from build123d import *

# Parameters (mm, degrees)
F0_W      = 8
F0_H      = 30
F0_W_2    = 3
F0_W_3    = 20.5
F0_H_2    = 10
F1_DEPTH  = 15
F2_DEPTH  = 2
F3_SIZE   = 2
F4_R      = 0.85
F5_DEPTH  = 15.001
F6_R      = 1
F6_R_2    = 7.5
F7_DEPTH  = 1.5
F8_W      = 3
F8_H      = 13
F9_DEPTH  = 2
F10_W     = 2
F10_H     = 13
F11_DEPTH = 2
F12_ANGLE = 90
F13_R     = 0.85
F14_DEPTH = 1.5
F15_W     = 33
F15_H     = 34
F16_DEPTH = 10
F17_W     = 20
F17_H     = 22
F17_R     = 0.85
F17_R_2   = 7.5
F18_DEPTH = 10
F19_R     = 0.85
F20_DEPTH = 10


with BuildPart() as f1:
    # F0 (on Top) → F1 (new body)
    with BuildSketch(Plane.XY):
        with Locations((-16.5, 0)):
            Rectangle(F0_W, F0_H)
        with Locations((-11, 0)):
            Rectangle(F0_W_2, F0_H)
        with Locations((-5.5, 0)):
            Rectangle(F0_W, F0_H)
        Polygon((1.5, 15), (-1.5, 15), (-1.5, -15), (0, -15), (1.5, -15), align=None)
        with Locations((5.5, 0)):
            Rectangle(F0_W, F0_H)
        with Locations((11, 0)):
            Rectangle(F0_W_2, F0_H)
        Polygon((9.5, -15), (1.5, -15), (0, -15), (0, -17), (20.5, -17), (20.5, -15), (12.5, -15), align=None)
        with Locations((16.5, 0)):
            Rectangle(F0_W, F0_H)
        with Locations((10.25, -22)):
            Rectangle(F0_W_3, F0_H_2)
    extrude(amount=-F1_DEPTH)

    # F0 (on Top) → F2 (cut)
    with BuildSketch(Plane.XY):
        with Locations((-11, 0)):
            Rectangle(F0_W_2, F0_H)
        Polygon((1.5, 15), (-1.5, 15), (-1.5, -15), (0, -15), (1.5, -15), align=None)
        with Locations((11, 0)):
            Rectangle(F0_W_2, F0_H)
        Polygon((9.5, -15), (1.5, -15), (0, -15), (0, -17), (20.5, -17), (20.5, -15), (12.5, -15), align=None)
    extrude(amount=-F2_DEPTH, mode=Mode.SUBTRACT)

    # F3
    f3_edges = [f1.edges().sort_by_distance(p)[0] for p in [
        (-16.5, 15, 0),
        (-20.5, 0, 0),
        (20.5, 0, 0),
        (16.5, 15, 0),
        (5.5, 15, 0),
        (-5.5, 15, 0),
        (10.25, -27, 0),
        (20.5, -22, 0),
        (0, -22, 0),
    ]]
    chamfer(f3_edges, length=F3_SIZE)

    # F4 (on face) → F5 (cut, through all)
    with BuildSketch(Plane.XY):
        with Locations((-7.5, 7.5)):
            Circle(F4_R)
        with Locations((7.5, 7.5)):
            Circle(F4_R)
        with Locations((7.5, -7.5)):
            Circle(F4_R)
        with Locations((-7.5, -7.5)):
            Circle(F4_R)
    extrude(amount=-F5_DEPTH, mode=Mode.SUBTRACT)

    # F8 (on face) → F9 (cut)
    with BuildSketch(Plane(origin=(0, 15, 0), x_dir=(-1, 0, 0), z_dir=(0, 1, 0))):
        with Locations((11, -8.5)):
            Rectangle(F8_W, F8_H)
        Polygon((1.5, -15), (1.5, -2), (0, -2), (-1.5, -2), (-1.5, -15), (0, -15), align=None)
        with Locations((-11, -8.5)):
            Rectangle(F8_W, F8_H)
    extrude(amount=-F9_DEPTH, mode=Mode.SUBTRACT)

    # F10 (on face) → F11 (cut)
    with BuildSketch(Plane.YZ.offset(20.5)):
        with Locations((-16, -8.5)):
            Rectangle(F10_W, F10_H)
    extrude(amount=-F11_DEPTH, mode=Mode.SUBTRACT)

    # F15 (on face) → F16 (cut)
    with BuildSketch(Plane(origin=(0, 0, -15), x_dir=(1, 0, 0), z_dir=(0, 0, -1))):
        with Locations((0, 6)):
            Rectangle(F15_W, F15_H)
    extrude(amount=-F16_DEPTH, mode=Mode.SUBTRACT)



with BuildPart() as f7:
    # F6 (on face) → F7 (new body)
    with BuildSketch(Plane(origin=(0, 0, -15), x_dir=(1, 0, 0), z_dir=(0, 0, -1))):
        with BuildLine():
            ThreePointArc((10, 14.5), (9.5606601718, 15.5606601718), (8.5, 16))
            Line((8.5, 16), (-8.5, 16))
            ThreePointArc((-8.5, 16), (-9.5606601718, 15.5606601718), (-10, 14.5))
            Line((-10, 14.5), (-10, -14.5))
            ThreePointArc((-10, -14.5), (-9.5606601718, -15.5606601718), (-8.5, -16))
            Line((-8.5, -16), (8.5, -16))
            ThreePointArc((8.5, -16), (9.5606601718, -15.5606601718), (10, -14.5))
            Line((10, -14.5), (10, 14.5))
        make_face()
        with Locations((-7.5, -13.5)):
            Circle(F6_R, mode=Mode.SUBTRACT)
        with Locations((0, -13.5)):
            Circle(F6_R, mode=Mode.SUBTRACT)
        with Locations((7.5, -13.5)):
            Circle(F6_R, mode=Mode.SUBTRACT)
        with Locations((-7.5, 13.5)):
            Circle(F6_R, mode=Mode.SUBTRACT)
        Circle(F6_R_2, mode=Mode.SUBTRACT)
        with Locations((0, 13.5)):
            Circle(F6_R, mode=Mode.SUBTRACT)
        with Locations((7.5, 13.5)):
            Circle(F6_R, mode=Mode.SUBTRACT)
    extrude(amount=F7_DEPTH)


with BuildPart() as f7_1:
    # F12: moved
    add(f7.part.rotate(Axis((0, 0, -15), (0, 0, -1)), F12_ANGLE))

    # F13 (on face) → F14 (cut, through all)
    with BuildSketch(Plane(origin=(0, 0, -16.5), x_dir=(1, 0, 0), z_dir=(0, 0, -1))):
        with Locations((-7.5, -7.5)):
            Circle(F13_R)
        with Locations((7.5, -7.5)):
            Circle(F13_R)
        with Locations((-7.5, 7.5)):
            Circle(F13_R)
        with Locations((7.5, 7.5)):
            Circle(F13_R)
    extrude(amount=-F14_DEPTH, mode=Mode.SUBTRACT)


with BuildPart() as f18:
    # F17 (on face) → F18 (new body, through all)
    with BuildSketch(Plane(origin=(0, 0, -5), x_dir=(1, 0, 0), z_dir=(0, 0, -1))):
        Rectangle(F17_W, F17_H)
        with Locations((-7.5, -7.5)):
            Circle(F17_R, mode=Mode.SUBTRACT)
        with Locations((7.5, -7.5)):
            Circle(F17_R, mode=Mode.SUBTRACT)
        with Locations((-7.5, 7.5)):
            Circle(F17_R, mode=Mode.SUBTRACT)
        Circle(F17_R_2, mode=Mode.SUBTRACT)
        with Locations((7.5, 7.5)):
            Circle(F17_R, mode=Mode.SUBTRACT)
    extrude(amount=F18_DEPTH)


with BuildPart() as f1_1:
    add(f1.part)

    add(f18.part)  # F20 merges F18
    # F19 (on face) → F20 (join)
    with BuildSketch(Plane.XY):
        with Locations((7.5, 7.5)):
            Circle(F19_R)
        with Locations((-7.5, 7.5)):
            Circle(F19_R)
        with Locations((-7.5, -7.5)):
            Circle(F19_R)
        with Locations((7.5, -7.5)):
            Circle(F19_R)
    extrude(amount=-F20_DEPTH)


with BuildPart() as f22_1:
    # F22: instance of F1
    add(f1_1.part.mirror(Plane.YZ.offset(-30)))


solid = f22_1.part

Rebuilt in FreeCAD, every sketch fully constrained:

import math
import FreeCAD as App
import Part
import Sketcher
from FreeCAD import Vector


def edges_at(feature, points):
    """Names of the edges that pass closest to the given points."""
    edges = feature.Shape.Edges
    near = lambda p: min(range(len(edges)), key=lambda i: edges[i].distToShape(Part.Vertex(*p))[0])
    return sorted({f"Edge{near(p) + 1}" for p in points})


def add_polygon(sketch, points):
    """Adds a closed chain of lines whose ends are joined by coincident constraints."""
    first, n = sketch.GeometryCount, len(points)
    for a, b in zip(points, points[1:] + points[:1]):
        sketch.addGeometry(Part.LineSegment(App.Vector(*a, 0), App.Vector(*b, 0)), False)
    for i in range(n):
        sketch.addConstraint(Sketcher.Constraint("Coincident", first + i, 2, first + (i + 1) % n, 1))

doc = App.newDocument("Part")
body = doc.addObject("PartDesign::Body", "Body")

sketch1 = body.newObject("Sketcher::SketchObject", "Sketch")
sketch1.AttachmentSupport = (doc.getObject("XY_Plane"), [""])
sketch1.MapMode = "FlatFace"
add_polygon(sketch1, [(-20.5, 15), (-20.5, -15), (0, -15), (0, -27), (20.5, -27), (20.5, 15)])
sketch1.addConstraint(Sketcher.Constraint("Vertical", 0))
sketch1.addConstraint(Sketcher.Constraint("Horizontal", 1))
sketch1.addConstraint(Sketcher.Constraint("Vertical", 2))
sketch1.addConstraint(Sketcher.Constraint("Horizontal", 3))
sketch1.addConstraint(Sketcher.Constraint("Vertical", 4))
sketch1.addConstraint(Sketcher.Constraint("Horizontal", 5))
sketch1.addConstraint(Sketcher.Constraint("Symmetric", 0, 2, 4, 2, -1, 1))
sketch1.addConstraint(Sketcher.Constraint("PointOnObject", 1, 2, -2))
sketch1.addConstraint(Sketcher.Constraint("DistanceX", 5, 2, 5, 1, 41.0))
sketch1.addConstraint(Sketcher.Constraint("DistanceY", 0, 2, 0, 1, 30.0))
sketch1.addConstraint(Sketcher.Constraint("DistanceY", 2, 2, 2, 1, 12.0))
pad1 = body.newObject("PartDesign::Pad", "Pad")
pad1.Profile = sketch1
pad1.Length = 15
pad1.Reversed = True

sketch2 = body.newObject("Sketcher::SketchObject", "Sketch001")
sketch2.AttachmentSupport = (doc.getObject("XY_Plane"), [""])
sketch2.MapMode = "FlatFace"
add_polygon(sketch2, [(-12.5, 15), (-12.5, -15), (-9.5, -15), (-9.5, 15)])
add_polygon(sketch2, [(1.5, 15), (-1.5, 15), (-1.5, -15), (0, -15), (0, -17), (20.5, -17), (20.5, -15), (12.5, -15), (12.5, 15), (9.5, 15), (9.5, -15), (1.5, -15)])
sketch2.addConstraint(Sketcher.Constraint("Vertical", 0))
sketch2.addConstraint(Sketcher.Constraint("Horizontal", 1))
sketch2.addConstraint(Sketcher.Constraint("Vertical", 2))
sketch2.addConstraint(Sketcher.Constraint("Horizontal", 3))
sketch2.addConstraint(Sketcher.Constraint("Horizontal", 4))
sketch2.addConstraint(Sketcher.Constraint("Vertical", 5))
sketch2.addConstraint(Sketcher.Constraint("Horizontal", 6))
sketch2.addConstraint(Sketcher.Constraint("Vertical", 7))
sketch2.addConstraint(Sketcher.Constraint("Horizontal", 8))
sketch2.addConstraint(Sketcher.Constraint("Vertical", 9))
sketch2.addConstraint(Sketcher.Constraint("Horizontal", 10))
sketch2.addConstraint(Sketcher.Constraint("Vertical", 11))
sketch2.addConstraint(Sketcher.Constraint("Horizontal", 12))
sketch2.addConstraint(Sketcher.Constraint("Vertical", 13))
sketch2.addConstraint(Sketcher.Constraint("Horizontal", 14))
sketch2.addConstraint(Sketcher.Constraint("Vertical", 15))
sketch2.addConstraint(Sketcher.Constraint("Symmetric", 3, 2, 10, 2, -1, 1))
sketch2.addConstraint(Sketcher.Constraint("Symmetric", 1, 2, 12, 2, -1, 1))
sketch2.addConstraint(Sketcher.Constraint("Symmetric", 4, 2, 14, 2, -1, 1))
sketch2.addConstraint(Sketcher.Constraint("PointOnObject", 6, 2, -2))
sketch2.addConstraint(Sketcher.Constraint("Horizontal", 3, 2, 4, 2))
sketch2.addConstraint(Sketcher.Constraint("Horizontal", 1, 2, 5, 2))
sketch2.addConstraint(Sketcher.Constraint("Horizontal", 6, 2, 9, 2))
sketch2.addConstraint(Sketcher.Constraint("Equal", 3, 4))
sketch2.addConstraint(Sketcher.Constraint("Equal", 10, 14))
sketch2.addConstraint(Sketcher.Constraint("DistanceX", 1, 1, 1, 2, 3.0))
sketch2.addConstraint(Sketcher.Constraint("DistanceX", 10, 2, 10, 1, 8.0))
sketch2.addConstraint(Sketcher.Constraint("DistanceY", 0, 2, 0, 1, 30.0))
sketch2.addConstraint(Sketcher.Constraint("DistanceY", 7, 2, 7, 1, 2.0))
pocket1 = body.newObject("PartDesign::Pocket", "Pocket")
pocket1.Profile = sketch2
pocket1.Length = 2
doc.recompute()

chamfer = body.newObject("PartDesign::Chamfer", "Chamfer")
chamfer.Base = (pocket1, edges_at(pocket1, [
    (-16.5, 15, 0),
    (-20.5, 0, 0),
    (20.5, 0, 0),
    (16.5, 15, 0),
    (5.5, 15, 0),
    (-5.5, 15, 0),
    (10.25, -27, 0),
    (20.5, -22, 0),
    (0, -22, 0),
]))
chamfer.Size = 2

sketch3 = body.newObject("Sketcher::SketchObject", "Sketch002")
sketch3.AttachmentSupport = (doc.getObject("XY_Plane"), [""])
sketch3.MapMode = "FlatFace"
sketch3.addGeometry(Part.Circle(Vector(-7.5, 7.5, 0), Vector(0, 0, 1), 0.85), False)
sketch3.addGeometry(Part.Circle(Vector(7.5, 7.5, 0), Vector(0, 0, 1), 0.85), False)
sketch3.addGeometry(Part.Circle(Vector(7.5, -7.5, 0), Vector(0, 0, 1), 0.85), False)
sketch3.addGeometry(Part.Circle(Vector(-7.5, -7.5, 0), Vector(0, 0, 1), 0.85), False)
sketch3.addConstraint(Sketcher.Constraint("Equal", 0, 1))
sketch3.addConstraint(Sketcher.Constraint("Equal", 1, 2))
sketch3.addConstraint(Sketcher.Constraint("Equal", 2, 3))
sketch3.addConstraint(Sketcher.Constraint("Symmetric", 0, 3, 2, 3, -1, 1))
sketch3.addConstraint(Sketcher.Constraint("Symmetric", 1, 3, 3, 3, -1, 1))
sketch3.addConstraint(Sketcher.Constraint("Symmetric", 0, 3, 1, 3, -2))
sketch3.addConstraint(Sketcher.Constraint("Diameter", 0, 1.7))
sketch3.addConstraint(Sketcher.Constraint("DistanceX", 0, 3, 1, 3, 15.0))
sketch3.addConstraint(Sketcher.Constraint("DistanceY", 2, 3, 1, 3, 15.0))
pocket2 = body.newObject("PartDesign::Pocket", "Pocket001")
pocket2.Profile = sketch3
pocket2.Type = "ThroughAll"

sketch4 = body.newObject("Sketcher::SketchObject", "Sketch003")
sketch4.AttachmentSupport = (doc.getObject("XZ_Plane"), [""])
sketch4.MapMode = "FlatFace"
sketch4.AttachmentOffset = App.Placement(Vector(0, 0, -15), App.Rotation())
add_polygon(sketch4, [(-9.5, -2), (-9.5, -15), (-12.5, -15), (-12.5, -2)])
add_polygon(sketch4, [(-1.5, -15), (-1.5, -2), (1.5, -2), (1.5, -15)])
add_polygon(sketch4, [(12.5, -2), (12.5, -15), (9.5, -15), (9.5, -2)])
sketch4.addConstraint(Sketcher.Constraint("Vertical", 0))
sketch4.addConstraint(Sketcher.Constraint("Horizontal", 1))
sketch4.addConstraint(Sketcher.Constraint("Vertical", 2))
sketch4.addConstraint(Sketcher.Constraint("Horizontal", 3))
sketch4.addConstraint(Sketcher.Constraint("Vertical", 4))
sketch4.addConstraint(Sketcher.Constraint("Horizontal", 5))
sketch4.addConstraint(Sketcher.Constraint("Vertical", 6))
sketch4.addConstraint(Sketcher.Constraint("Horizontal", 7))
sketch4.addConstraint(Sketcher.Constraint("Vertical", 8))
sketch4.addConstraint(Sketcher.Constraint("Horizontal", 9))
sketch4.addConstraint(Sketcher.Constraint("Vertical", 10))
sketch4.addConstraint(Sketcher.Constraint("Horizontal", 11))
sketch4.addConstraint(Sketcher.Constraint("Symmetric", 1, 2, 8, 2, -2))
sketch4.addConstraint(Sketcher.Constraint("Symmetric", 3, 2, 10, 2, -2))
sketch4.addConstraint(Sketcher.Constraint("Horizontal", 3, 2, 4, 2))
sketch4.addConstraint(Sketcher.Constraint("Horizontal", 1, 2, 6, 2))
sketch4.addConstraint(Sketcher.Constraint("Equal", 3, 5))
sketch4.addConstraint(Sketcher.Constraint("DistanceX", 1, 2, 1, 1, 3.0))
sketch4.addConstraint(Sketcher.Constraint("DistanceY", 0, 2, 0, 1, 13.0))
sketch4.addConstraint(Sketcher.Constraint("DistanceY", 0, 2, -1, 1, 15.0))
sketch4.addConstraint(Sketcher.Constraint("DistanceX", 3, 2, 4, 2, 8.0))
sketch4.addConstraint(Sketcher.Constraint("DistanceX", 6, 2, 8, 2, 11.0))
pocket3 = body.newObject("PartDesign::Pocket", "Pocket002")
pocket3.Profile = sketch4
pocket3.Length = 2
pocket3.Reversed = True

sketch5 = body.newObject("Sketcher::SketchObject", "Sketch004")
sketch5.AttachmentSupport = (doc.getObject("YZ_Plane"), [""])
sketch5.MapMode = "FlatFace"
sketch5.AttachmentOffset = App.Placement(Vector(0, 0, 20.5), App.Rotation())
add_polygon(sketch5, [(-17, -2), (-17, -15), (-15, -15), (-15, -2)])
sketch5.addConstraint(Sketcher.Constraint("Vertical", 0))
sketch5.addConstraint(Sketcher.Constraint("Horizontal", 1))
sketch5.addConstraint(Sketcher.Constraint("Vertical", 2))
sketch5.addConstraint(Sketcher.Constraint("Horizontal", 3))
sketch5.addConstraint(Sketcher.Constraint("DistanceX", 1, 1, 1, 2, 2.0))
sketch5.addConstraint(Sketcher.Constraint("DistanceY", 0, 2, 0, 1, 13.0))
sketch5.addConstraint(Sketcher.Constraint("DistanceX", 0, 2, -1, 1, 17.0))
sketch5.addConstraint(Sketcher.Constraint("DistanceY", 0, 2, -1, 1, 15.0))
pocket4 = body.newObject("PartDesign::Pocket", "Pocket003")
pocket4.Profile = sketch5
pocket4.Length = 2

sketch6 = body.newObject("Sketcher::SketchObject", "Sketch005")
sketch6.AttachmentSupport = (doc.getObject("XY_Plane"), [""])
sketch6.MapMode = "FlatFace"
sketch6.AttachmentOffset = App.Placement(Vector(0, 0, -15), App.Rotation())
add_polygon(sketch6, [(-16.5, -23), (-16.5, 11), (16.5, 11), (16.5, -23)])
sketch6.addConstraint(Sketcher.Constraint("Vertical", 0))
sketch6.addConstraint(Sketcher.Constraint("Horizontal", 1))
sketch6.addConstraint(Sketcher.Constraint("Vertical", 2))
sketch6.addConstraint(Sketcher.Constraint("Horizontal", 3))
sketch6.addConstraint(Sketcher.Constraint("DistanceX", 1, 1, 1, 2, 33.0))
sketch6.addConstraint(Sketcher.Constraint("DistanceY", 0, 1, 0, 2, 34.0))
sketch6.addConstraint(Sketcher.Constraint("DistanceY", -1, 1, 0, 2, 11.0))
sketch6.addConstraint(Sketcher.Constraint("DistanceX", 0, 2, -1, 1, 16.5))
pocket5 = body.newObject("PartDesign::Pocket", "Pocket004")
pocket5.Profile = sketch6
pocket5.Length = 10
pocket5.Reversed = True
body2 = doc.addObject("PartDesign::Body", "Body001")

sketch7 = body2.newObject("Sketcher::SketchObject", "Sketch006")
sketch7.AttachmentSupport = (doc.getObject("XY_Plane001"), [""])
sketch7.MapMode = "FlatFace"
sketch7.AttachmentOffset = App.Placement(Vector(0, 0, -15), App.Rotation())
sketch7.addGeometry(Part.ArcOfCircle(Part.Circle(Vector(8.5, -14.5, 0), Vector(0, 0, 1), 1.5), math.radians(-90), math.radians(0)), False)
sketch7.addGeometry(Part.LineSegment(Vector(8.5, -16, 0), Vector(-8.5, -16, 0)), False)
sketch7.addGeometry(Part.ArcOfCircle(Part.Circle(Vector(-8.5, -14.5, 0), Vector(0, 0, 1), 1.5), math.radians(180), math.radians(270)), False)
sketch7.addGeometry(Part.LineSegment(Vector(-10, -14.5, 0), Vector(-10, 14.5, 0)), False)
sketch7.addGeometry(Part.ArcOfCircle(Part.Circle(Vector(-8.5, 14.5, 0), Vector(0, 0, 1), 1.5), math.radians(90), math.radians(180)), False)
sketch7.addGeometry(Part.LineSegment(Vector(-8.5, 16, 0), Vector(8.5, 16, 0)), False)
sketch7.addGeometry(Part.ArcOfCircle(Part.Circle(Vector(8.5, 14.5, 0), Vector(0, 0, 1), 1.5), math.radians(0), math.radians(90)), False)
sketch7.addGeometry(Part.LineSegment(Vector(10, 14.5, 0), Vector(10, -14.5, 0)), False)
sketch7.addGeometry(Part.Circle(Vector(-7.5, 13.5, 0), Vector(0, 0, 1), 1), False)
sketch7.addGeometry(Part.Circle(Vector(0, 13.5, 0), Vector(0, 0, 1), 1), False)
sketch7.addGeometry(Part.Circle(Vector(7.5, 13.5, 0), Vector(0, 0, 1), 1), False)
sketch7.addGeometry(Part.Circle(Vector(-7.5, -13.5, 0), Vector(0, 0, 1), 1), False)
sketch7.addGeometry(Part.Circle(Vector(0, 0, 0), Vector(0, 0, 1), 7.5), False)
sketch7.addGeometry(Part.Circle(Vector(0, -13.5, 0), Vector(0, 0, 1), 1), False)
sketch7.addGeometry(Part.Circle(Vector(7.5, -13.5, 0), Vector(0, 0, 1), 1), False)
sketch7.addConstraint(Sketcher.Constraint("Tangent", 0, 1, 1, 1))
sketch7.addConstraint(Sketcher.Constraint("Tangent", 1, 2, 2, 2))
sketch7.addConstraint(Sketcher.Constraint("Tangent", 2, 1, 3, 1))
sketch7.addConstraint(Sketcher.Constraint("Tangent", 3, 2, 4, 2))
sketch7.addConstraint(Sketcher.Constraint("Tangent", 4, 1, 5, 1))
sketch7.addConstraint(Sketcher.Constraint("Tangent", 5, 2, 6, 2))
sketch7.addConstraint(Sketcher.Constraint("Tangent", 6, 1, 7, 1))
sketch7.addConstraint(Sketcher.Constraint("Tangent", 7, 2, 0, 2))
sketch7.addConstraint(Sketcher.Constraint("Horizontal", 1))
sketch7.addConstraint(Sketcher.Constraint("Vertical", 3))
sketch7.addConstraint(Sketcher.Constraint("Horizontal", 5))
sketch7.addConstraint(Sketcher.Constraint("Vertical", 7))
sketch7.addConstraint(Sketcher.Constraint("Coincident", 12, 3, -1, 1))
sketch7.addConstraint(Sketcher.Constraint("Equal", 0, 2))
sketch7.addConstraint(Sketcher.Constraint("Equal", 2, 4))
sketch7.addConstraint(Sketcher.Constraint("Equal", 4, 6))
sketch7.addConstraint(Sketcher.Constraint("Equal", 8, 9))
sketch7.addConstraint(Sketcher.Constraint("Equal", 9, 10))
sketch7.addConstraint(Sketcher.Constraint("Equal", 10, 11))
sketch7.addConstraint(Sketcher.Constraint("Equal", 11, 13))
sketch7.addConstraint(Sketcher.Constraint("Equal", 13, 14))
sketch7.addConstraint(Sketcher.Constraint("Symmetric", 0, 3, 4, 3, -1, 1))
sketch7.addConstraint(Sketcher.Constraint("Symmetric", 10, 3, 11, 3, -1, 1))
sketch7.addConstraint(Sketcher.Constraint("Symmetric", 9, 3, 13, 3, -1, 1))
sketch7.addConstraint(Sketcher.Constraint("Symmetric", 8, 3, 14, 3, -1, 1))
sketch7.addConstraint(Sketcher.Constraint("Symmetric", 8, 3, 10, 3, -2))
sketch7.addConstraint(Sketcher.Constraint("PointOnObject", 9, 3, -2))
sketch7.addConstraint(Sketcher.Constraint("Horizontal", 8, 3, 9, 3))
sketch7.addConstraint(Sketcher.Constraint("Diameter", 8, 2.0))
sketch7.addConstraint(Sketcher.Constraint("Diameter", 12, 15.0))
sketch7.addConstraint(Sketcher.Constraint("Radius", 0, 1.5))
sketch7.addConstraint(Sketcher.Constraint("DistanceX", 1, 2, 1, 1, 17.0))
sketch7.addConstraint(Sketcher.Constraint("DistanceY", 3, 1, 3, 2, 29.0))
sketch7.addConstraint(Sketcher.Constraint("DistanceX", 4, 3, 8, 3, 1.0))
sketch7.addConstraint(Sketcher.Constraint("DistanceY", 8, 3, 4, 3, 1.0))
pad2 = body2.newObject("PartDesign::Pad", "Pad001")
pad2.Profile = sketch7
pad2.Length = 1.5
pad2.Reversed = True
body3 = doc.addObject("PartDesign::Body", "Body002")
doc.recompute()

body2.Placement = App.Placement(Vector(0, 0, 0), App.Rotation(Vector(0, 0, -1), 90))
boolean = body3.newObject("PartDesign::Boolean", "Boolean")
boolean.Type = "Fuse"
boolean.addObjects([body2])

sketch8 = body3.newObject("Sketcher::SketchObject", "Sketch007")
sketch8.AttachmentSupport = (doc.getObject("XY_Plane002"), [""])
sketch8.MapMode = "FlatFace"
sketch8.AttachmentOffset = App.Placement(Vector(0, 0, -16.5), App.Rotation())
sketch8.addGeometry(Part.Circle(Vector(-7.5, 7.5, 0), Vector(0, 0, 1), 0.85), False)
sketch8.addGeometry(Part.Circle(Vector(7.5, 7.5, 0), Vector(0, 0, 1), 0.85), False)
sketch8.addGeometry(Part.Circle(Vector(-7.5, -7.5, 0), Vector(0, 0, 1), 0.85), False)
sketch8.addGeometry(Part.Circle(Vector(7.5, -7.5, 0), Vector(0, 0, 1), 0.85), False)
sketch8.addConstraint(Sketcher.Constraint("Equal", 0, 1))
sketch8.addConstraint(Sketcher.Constraint("Equal", 1, 2))
sketch8.addConstraint(Sketcher.Constraint("Equal", 2, 3))
sketch8.addConstraint(Sketcher.Constraint("Symmetric", 1, 3, 2, 3, -1, 1))
sketch8.addConstraint(Sketcher.Constraint("Symmetric", 0, 3, 3, 3, -1, 1))
sketch8.addConstraint(Sketcher.Constraint("Symmetric", 0, 3, 1, 3, -2))
sketch8.addConstraint(Sketcher.Constraint("Diameter", 0, 1.7))
sketch8.addConstraint(Sketcher.Constraint("DistanceX", 0, 3, 1, 3, 15.0))
sketch8.addConstraint(Sketcher.Constraint("DistanceY", 2, 3, 0, 3, 15.0))
pocket6 = body3.newObject("PartDesign::Pocket", "Pocket005")
pocket6.Profile = sketch8
pocket6.Type = "ThroughAll"
pocket6.Reversed = True
body4 = doc.addObject("PartDesign::Body", "Body003")

sketch9 = body4.newObject("Sketcher::SketchObject", "Sketch008")
sketch9.AttachmentSupport = (doc.getObject("XY_Plane003"), [""])
sketch9.MapMode = "FlatFace"
sketch9.AttachmentOffset = App.Placement(Vector(0, 0, -5), App.Rotation())
add_polygon(sketch9, [(-10, -11), (-10, 11), (10, 11), (10, -11)])
sketch9.addGeometry(Part.Circle(Vector(-7.5, 7.5, 0), Vector(0, 0, 1), 0.85), False)
sketch9.addGeometry(Part.Circle(Vector(7.5, 7.5, 0), Vector(0, 0, 1), 0.85), False)
sketch9.addGeometry(Part.Circle(Vector(-7.5, -7.5, 0), Vector(0, 0, 1), 0.85), False)
sketch9.addGeometry(Part.Circle(Vector(0, 0, 0), Vector(0, 0, 1), 7.5), False)
sketch9.addGeometry(Part.Circle(Vector(7.5, -7.5, 0), Vector(0, 0, 1), 0.85), False)
sketch9.addConstraint(Sketcher.Constraint("Vertical", 0))
sketch9.addConstraint(Sketcher.Constraint("Horizontal", 1))
sketch9.addConstraint(Sketcher.Constraint("Vertical", 2))
sketch9.addConstraint(Sketcher.Constraint("Horizontal", 3))
sketch9.addConstraint(Sketcher.Constraint("Coincident", 7, 3, -1, 1))
sketch9.addConstraint(Sketcher.Constraint("Equal", 4, 5))
sketch9.addConstraint(Sketcher.Constraint("Equal", 5, 6))
sketch9.addConstraint(Sketcher.Constraint("Equal", 6, 8))
sketch9.addConstraint(Sketcher.Constraint("Symmetric", 5, 3, 6, 3, -1, 1))
sketch9.addConstraint(Sketcher.Constraint("Symmetric", 4, 3, 8, 3, -1, 1))
sketch9.addConstraint(Sketcher.Constraint("Symmetric", 0, 2, 2, 2, -1, 1))
sketch9.addConstraint(Sketcher.Constraint("Symmetric", 4, 3, 5, 3, -2))
sketch9.addConstraint(Sketcher.Constraint("Diameter", 7, 15.0))
sketch9.addConstraint(Sketcher.Constraint("Diameter", 4, 1.7))
sketch9.addConstraint(Sketcher.Constraint("DistanceX", 1, 1, 1, 2, 20.0))
sketch9.addConstraint(Sketcher.Constraint("DistanceY", 0, 1, 0, 2, 22.0))
sketch9.addConstraint(Sketcher.Constraint("DistanceX", 4, 3, 5, 3, 15.0))
sketch9.addConstraint(Sketcher.Constraint("DistanceY", 6, 3, 4, 3, 15.0))
pad3 = body4.newObject("PartDesign::Pad", "Pad002")
pad3.Profile = sketch9
pad3.Length = 10
pad3.Reversed = True
doc.recompute()

boolean2 = body.newObject("PartDesign::Boolean", "Boolean001")
boolean2.Type = "Fuse"
boolean2.addObjects([body4])

sketch10 = body.newObject("Sketcher::SketchObject", "Sketch009")
sketch10.AttachmentSupport = (doc.getObject("XY_Plane"), [""])
sketch10.MapMode = "FlatFace"
sketch10.addGeometry(Part.Circle(Vector(7.5, 7.5, 0), Vector(0, 0, 1), 0.85), False)
sketch10.addGeometry(Part.Circle(Vector(-7.5, 7.5, 0), Vector(0, 0, 1), 0.85), False)
sketch10.addGeometry(Part.Circle(Vector(-7.5, -7.5, 0), Vector(0, 0, 1), 0.85), False)
sketch10.addGeometry(Part.Circle(Vector(7.5, -7.5, 0), Vector(0, 0, 1), 0.85), False)
sketch10.addConstraint(Sketcher.Constraint("Equal", 0, 1))
sketch10.addConstraint(Sketcher.Constraint("Equal", 1, 2))
sketch10.addConstraint(Sketcher.Constraint("Equal", 2, 3))
sketch10.addConstraint(Sketcher.Constraint("Symmetric", 0, 3, 2, 3, -1, 1))
sketch10.addConstraint(Sketcher.Constraint("Symmetric", 1, 3, 3, 3, -1, 1))
sketch10.addConstraint(Sketcher.Constraint("Symmetric", 0, 3, 1, 3, -2))
sketch10.addConstraint(Sketcher.Constraint("Diameter", 0, 1.7))
sketch10.addConstraint(Sketcher.Constraint("DistanceX", 1, 3, 0, 3, 15.0))
sketch10.addConstraint(Sketcher.Constraint("DistanceY", 2, 3, 1, 3, 15.0))
pad4 = body.newObject("PartDesign::Pad", "Pad003")
pad4.Profile = sketch10
pad4.Length = 10
pad4.Reversed = True
body5 = doc.addObject("PartDesign::Body", "Body004")
doc.recompute()

mirroring = doc.addObject("Part::Mirroring", "Mirroring")
mirroring.Source = body
mirroring.Base = Vector(-30, 0, 0)
mirroring.Normal = Vector(1, 0, 0)
body5.BaseFeature = mirroring
doc.recompute()
body.Visibility = False
body3.Visibility = False
mirroring.Visibility = False

doc.recompute()
